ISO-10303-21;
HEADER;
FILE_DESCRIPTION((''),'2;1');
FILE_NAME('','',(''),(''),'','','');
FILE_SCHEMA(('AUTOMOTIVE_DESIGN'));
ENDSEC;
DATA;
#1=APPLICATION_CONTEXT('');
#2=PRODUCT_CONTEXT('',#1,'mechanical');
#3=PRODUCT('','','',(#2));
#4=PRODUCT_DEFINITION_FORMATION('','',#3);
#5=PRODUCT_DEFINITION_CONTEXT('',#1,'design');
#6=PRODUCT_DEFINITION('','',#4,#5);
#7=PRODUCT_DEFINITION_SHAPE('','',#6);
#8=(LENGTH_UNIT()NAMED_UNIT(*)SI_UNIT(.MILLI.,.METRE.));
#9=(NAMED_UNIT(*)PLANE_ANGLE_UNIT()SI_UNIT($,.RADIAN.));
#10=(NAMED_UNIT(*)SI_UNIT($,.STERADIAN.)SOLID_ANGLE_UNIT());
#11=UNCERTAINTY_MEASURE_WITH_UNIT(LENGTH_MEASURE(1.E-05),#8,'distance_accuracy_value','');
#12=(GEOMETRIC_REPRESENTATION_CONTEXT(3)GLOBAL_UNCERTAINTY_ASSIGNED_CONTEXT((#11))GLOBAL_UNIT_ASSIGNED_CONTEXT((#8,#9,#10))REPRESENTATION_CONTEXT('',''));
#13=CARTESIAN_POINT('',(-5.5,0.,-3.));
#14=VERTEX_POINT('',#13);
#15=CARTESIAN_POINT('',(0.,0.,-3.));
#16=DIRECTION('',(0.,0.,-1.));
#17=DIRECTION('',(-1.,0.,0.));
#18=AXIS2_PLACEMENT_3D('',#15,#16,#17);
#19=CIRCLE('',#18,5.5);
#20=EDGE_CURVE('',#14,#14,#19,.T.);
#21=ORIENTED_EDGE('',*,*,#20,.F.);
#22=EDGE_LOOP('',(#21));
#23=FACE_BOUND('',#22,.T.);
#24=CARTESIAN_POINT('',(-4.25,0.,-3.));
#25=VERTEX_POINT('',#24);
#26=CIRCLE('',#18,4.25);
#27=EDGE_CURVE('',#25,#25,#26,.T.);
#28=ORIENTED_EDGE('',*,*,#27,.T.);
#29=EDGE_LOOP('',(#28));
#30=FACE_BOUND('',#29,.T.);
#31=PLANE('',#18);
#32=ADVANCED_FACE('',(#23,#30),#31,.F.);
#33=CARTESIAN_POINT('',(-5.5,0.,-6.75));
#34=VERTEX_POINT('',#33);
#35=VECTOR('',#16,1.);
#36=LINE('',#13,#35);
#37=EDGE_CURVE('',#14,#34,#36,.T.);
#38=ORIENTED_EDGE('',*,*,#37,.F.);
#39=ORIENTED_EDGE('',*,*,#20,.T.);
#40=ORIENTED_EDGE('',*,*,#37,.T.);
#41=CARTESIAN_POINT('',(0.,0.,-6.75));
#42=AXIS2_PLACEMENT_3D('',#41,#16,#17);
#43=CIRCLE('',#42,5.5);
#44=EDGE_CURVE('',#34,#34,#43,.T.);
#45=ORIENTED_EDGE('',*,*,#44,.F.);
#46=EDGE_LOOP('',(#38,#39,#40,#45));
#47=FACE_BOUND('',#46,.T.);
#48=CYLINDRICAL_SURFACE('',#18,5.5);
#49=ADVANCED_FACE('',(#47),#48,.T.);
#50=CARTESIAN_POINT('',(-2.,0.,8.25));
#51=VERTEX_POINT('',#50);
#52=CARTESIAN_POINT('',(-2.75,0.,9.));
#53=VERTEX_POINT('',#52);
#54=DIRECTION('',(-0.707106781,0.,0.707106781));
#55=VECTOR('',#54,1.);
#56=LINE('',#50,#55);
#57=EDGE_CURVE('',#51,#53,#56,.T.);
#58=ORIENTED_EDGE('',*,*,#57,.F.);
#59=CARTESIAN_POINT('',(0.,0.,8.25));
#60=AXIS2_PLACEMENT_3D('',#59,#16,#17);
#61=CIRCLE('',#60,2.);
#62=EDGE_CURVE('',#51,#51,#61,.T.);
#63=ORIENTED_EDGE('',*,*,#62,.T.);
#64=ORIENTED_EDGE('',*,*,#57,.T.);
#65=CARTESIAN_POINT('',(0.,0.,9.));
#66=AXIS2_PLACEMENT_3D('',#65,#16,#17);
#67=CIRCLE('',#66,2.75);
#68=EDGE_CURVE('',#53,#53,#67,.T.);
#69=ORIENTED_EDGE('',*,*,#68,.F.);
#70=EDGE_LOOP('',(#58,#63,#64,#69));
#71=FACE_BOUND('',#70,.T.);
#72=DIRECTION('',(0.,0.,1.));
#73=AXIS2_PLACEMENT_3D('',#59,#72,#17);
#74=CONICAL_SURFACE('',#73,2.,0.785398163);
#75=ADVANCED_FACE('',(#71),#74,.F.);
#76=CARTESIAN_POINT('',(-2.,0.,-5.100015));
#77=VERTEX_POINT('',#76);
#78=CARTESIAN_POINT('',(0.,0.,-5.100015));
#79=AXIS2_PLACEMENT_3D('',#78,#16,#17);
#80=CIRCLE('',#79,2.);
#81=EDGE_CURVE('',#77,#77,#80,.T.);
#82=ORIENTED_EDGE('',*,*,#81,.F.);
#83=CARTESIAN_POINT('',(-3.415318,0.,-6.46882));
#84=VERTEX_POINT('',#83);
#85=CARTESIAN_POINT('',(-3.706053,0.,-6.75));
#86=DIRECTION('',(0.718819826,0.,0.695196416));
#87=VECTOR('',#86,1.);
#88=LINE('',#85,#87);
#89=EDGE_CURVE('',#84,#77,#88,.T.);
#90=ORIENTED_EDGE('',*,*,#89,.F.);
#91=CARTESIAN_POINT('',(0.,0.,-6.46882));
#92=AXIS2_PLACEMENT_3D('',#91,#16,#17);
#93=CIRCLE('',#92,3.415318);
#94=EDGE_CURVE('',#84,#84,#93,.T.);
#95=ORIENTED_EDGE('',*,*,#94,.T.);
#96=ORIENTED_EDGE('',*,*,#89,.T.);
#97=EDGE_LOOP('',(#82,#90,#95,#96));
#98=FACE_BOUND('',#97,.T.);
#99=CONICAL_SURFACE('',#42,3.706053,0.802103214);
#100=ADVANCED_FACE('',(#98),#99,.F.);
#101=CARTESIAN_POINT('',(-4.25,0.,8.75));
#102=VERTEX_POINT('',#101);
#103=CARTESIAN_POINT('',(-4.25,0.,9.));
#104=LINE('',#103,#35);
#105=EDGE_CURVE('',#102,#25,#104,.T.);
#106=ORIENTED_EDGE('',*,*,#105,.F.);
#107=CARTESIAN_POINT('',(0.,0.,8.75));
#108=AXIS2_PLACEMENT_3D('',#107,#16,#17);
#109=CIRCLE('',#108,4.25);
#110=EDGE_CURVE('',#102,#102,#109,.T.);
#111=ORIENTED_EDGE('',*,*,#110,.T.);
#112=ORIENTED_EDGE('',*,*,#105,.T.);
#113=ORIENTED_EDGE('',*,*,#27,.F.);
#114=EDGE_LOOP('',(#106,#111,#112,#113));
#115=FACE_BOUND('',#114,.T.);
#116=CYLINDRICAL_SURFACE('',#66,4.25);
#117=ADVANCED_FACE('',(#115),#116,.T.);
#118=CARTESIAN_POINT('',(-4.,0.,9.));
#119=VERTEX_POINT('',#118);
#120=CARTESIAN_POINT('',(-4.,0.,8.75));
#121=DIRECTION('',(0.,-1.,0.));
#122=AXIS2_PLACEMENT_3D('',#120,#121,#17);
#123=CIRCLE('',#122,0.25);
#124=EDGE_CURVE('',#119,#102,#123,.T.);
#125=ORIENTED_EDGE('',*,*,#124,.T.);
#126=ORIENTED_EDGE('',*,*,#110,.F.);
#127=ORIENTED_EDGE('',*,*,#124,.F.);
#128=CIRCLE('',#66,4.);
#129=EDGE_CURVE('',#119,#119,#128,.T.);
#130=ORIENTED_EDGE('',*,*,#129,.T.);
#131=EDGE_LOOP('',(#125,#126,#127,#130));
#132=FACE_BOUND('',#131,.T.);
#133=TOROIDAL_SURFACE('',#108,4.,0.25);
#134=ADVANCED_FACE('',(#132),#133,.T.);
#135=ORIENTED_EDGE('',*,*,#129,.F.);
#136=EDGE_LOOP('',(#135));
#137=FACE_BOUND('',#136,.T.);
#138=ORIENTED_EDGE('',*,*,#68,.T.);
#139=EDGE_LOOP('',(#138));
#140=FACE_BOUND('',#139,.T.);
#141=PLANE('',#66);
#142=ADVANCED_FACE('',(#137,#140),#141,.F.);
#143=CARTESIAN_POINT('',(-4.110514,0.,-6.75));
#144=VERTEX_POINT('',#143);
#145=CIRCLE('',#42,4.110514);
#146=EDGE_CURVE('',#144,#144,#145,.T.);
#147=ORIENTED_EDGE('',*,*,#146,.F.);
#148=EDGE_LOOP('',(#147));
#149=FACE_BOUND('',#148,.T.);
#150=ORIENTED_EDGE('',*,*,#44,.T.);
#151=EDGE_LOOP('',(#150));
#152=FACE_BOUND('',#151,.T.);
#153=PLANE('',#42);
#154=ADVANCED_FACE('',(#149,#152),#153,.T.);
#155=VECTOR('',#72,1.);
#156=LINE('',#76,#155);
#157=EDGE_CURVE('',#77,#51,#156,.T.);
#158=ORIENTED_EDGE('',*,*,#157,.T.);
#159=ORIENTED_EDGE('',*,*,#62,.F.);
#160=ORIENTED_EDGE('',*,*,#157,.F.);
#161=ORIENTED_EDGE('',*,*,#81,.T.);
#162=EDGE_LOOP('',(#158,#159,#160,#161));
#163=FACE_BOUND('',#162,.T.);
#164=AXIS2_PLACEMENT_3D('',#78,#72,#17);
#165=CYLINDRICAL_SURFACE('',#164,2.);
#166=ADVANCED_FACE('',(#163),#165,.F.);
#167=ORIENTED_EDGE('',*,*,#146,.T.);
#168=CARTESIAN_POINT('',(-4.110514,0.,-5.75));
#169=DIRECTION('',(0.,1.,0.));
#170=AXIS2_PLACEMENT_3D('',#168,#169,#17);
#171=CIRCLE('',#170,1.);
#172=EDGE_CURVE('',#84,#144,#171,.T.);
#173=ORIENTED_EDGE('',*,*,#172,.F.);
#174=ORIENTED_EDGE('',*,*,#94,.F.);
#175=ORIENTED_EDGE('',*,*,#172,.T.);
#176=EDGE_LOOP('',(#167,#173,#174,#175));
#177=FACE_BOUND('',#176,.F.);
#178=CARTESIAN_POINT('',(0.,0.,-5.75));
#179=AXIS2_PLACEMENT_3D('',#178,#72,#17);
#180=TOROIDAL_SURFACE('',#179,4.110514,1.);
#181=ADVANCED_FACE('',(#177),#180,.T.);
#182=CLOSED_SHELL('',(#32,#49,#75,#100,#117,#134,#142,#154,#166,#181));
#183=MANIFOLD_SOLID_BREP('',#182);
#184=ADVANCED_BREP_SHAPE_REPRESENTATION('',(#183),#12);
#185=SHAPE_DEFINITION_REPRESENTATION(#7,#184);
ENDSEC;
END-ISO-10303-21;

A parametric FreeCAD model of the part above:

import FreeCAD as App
import Part
import Sketcher
Q = App.Units.Quantity


def edges_at(feature, points):
    """Names of the edges that pass closest to the given points."""
    edges = feature.Shape.Edges
    near = lambda p: min(range(len(edges)), key=lambda i: edges[i].distToShape(Part.Vertex(*p))[0])
    return sorted({f"Edge{near(p) + 1}" for p in points})


def add_polygon(sketch, points):
    """Adds a closed chain of lines whose ends are joined by coincident constraints."""
    first, n = sketch.GeometryCount, len(points)
    for a, b in zip(points, points[1:] + points[:1]):
        sketch.addGeometry(Part.LineSegment(App.Vector(*a, 0), App.Vector(*b, 0)), False)
    for i in range(n):
        sketch.addConstraint(Sketcher.Constraint("Coincident", first + i, 2, first + (i + 1) % n, 1))

doc = App.newDocument("Part")
body = doc.addObject("PartDesign::Body", "Body")

sketch1 = doc.addObject("Sketcher::SketchObject", "Sketch")
body.addObject(sketch1)
sketch1.AttachmentSupport = (doc.XZ_Plane, [""])
sketch1.MapMode = "FlatFace"
add_polygon(sketch1, [(-2, 8.2), (-2.8, 9), (-4.2, 9), (-4.2, -3), (-5.5, -3), (-5.5, -6.8), (-3.7, -6.8), (-2, -5.1)])
sketch1.addConstraint([
    Sketcher.Constraint("Horizontal", 1),
    Sketcher.Constraint("Vertical", 2),
    Sketcher.Constraint("Horizontal", 3),
    Sketcher.Constraint("Vertical", 4),
    Sketcher.Constraint("Horizontal", 5),
    Sketcher.Constraint("Vertical", 7),
    Sketcher.Constraint("DistanceY", 2, 2, 2, 1, 12.0),
    Sketcher.Constraint("Angle", 0, Q("135 deg")),
    Sketcher.Constraint("DistanceX", 1, 2, 1, 1, 1.5),
    Sketcher.Constraint("DistanceY", -1, 1, 0, 2, 9.0),
    Sketcher.Constraint("DistanceX", 6, 2, -1, 1, 2.0),
    Sketcher.Constraint("DistanceX", 3, 2, 3, 1, 1.25),
    Sketcher.Constraint("DistanceY", 4, 2, 4, 1, 3.75),
    Sketcher.Constraint("DistanceX", 3, 2, -1, 1, 5.5),
    Sketcher.Constraint("Distance", 6, 2.373408),
    Sketcher.Constraint("DistanceX", 5, 1, 5, 2, 1.793947),
])
revolution = doc.addObject("PartDesign::Revolution", "Revolution")
body.addObject(revolution)
revolution.Profile = sketch1
revolution.ReferenceAxis = (sketch1, ["V_Axis"])
revolution.Angle = 360
doc.recompute()

fillet = doc.addObject("PartDesign::Fillet", "Fillet")
body.addObject(fillet)
fillet.Base = (revolution, edges_at(revolution, [(4.25, 0, 9)]))
fillet.Radius = 0.25
doc.recompute()

fillet2 = doc.addObject("PartDesign::Fillet", "Fillet001")
body.addObject(fillet2)
fillet2.Base = (fillet, edges_at(fillet, [(3.706, 0, -6.75)]))
fillet2.Radius = 1

doc.recompute()
